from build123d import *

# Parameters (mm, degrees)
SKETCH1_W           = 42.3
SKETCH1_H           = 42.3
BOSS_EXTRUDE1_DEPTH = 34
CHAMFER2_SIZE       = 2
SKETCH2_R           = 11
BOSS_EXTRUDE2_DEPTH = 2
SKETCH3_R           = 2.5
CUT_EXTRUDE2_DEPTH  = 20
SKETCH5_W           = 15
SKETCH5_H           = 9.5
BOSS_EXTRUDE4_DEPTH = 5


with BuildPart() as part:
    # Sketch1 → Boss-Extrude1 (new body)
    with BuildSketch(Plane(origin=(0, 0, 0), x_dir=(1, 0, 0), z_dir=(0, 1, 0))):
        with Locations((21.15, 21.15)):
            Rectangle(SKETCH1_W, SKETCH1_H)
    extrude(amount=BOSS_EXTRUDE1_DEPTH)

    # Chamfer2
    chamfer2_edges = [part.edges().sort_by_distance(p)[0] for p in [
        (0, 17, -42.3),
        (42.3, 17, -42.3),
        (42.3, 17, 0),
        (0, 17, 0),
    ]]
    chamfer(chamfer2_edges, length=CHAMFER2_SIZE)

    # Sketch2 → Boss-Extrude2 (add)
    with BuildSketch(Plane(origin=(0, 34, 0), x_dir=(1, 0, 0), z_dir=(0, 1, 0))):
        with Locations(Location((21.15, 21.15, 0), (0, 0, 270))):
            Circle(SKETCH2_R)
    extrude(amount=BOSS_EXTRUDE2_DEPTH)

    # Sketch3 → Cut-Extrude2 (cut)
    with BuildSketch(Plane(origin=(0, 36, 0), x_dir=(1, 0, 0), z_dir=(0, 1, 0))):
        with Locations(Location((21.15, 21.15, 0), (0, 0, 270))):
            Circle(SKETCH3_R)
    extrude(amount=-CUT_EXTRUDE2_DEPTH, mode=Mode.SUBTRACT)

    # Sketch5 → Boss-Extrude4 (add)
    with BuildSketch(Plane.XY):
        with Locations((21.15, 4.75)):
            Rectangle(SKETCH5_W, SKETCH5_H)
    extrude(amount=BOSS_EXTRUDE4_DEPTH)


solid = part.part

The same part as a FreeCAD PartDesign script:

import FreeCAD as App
import Part
import Sketcher
Q = App.Units.Quantity


def edges_at(feature, points):
    """Names of the edges that pass closest to the given points."""
    edges = feature.Shape.Edges
    near = lambda p: min(range(len(edges)), key=lambda i: edges[i].distToShape(Part.Vertex(*p))[0])
    return sorted({f"Edge{near(p) + 1}" for p in points})

doc = App.newDocument("Part")
params = doc.addObject("Spreadsheet::Sheet", "Params")
for row, (alias, value) in enumerate([
    ("sketch1_width", "42.3 mm"),
    ("pad1_length", "34 mm"),
    ("chamfer_size", "2 mm"),
    ("sketch2_diameter", "22 mm"),
    ("pad2_length", "2 mm"),
    ("sketch3_diameter", "5 mm"),
    ("pocket1_length", "20 mm"),
    ("sketch4_width", "15 mm"),
    ("sketch4_height", "9.5 mm"),
    ("pad3_length", "5 mm"),
], start=1):
    params.set(f"A{row}", alias)
    params.set(f"B{row}", "=" + value)
    params.setAlias(f"B{row}", alias)

body = doc.addObject("PartDesign::Body", "Body")

# Sketch on XZ plane
sketch1 = body.newObject("Sketcher::SketchObject", "Sketch")
sketch1.AttachmentSupport = (doc.getObject("XZ_Plane"), [""])
sketch1.MapMode = "FlatFace"
sketch1.addGeometry(Part.LineSegment(App.Vector(0, -42.3, 0), App.Vector(0, 0, 0)), False)
sketch1.addGeometry(Part.LineSegment(App.Vector(0, 0, 0), App.Vector(42.3, 0, 0)), False)
sketch1.addGeometry(Part.LineSegment(App.Vector(42.3, 0, 0), App.Vector(42.3, -42.3, 0)), False)
sketch1.addGeometry(Part.LineSegment(App.Vector(42.3, -42.3, 0), App.Vector(0, -42.3, 0)), False)
sketch1.addConstraint(Sketcher.Constraint("Coincident", 0, 2, 1, 1))
sketch1.addConstraint(Sketcher.Constraint("Coincident", 1, 2, 2, 1))
sketch1.addConstraint(Sketcher.Constraint("Coincident", 2, 2, 3, 1))
sketch1.addConstraint(Sketcher.Constraint("Coincident", 3, 2, 0, 1))
sketch1.addConstraint(Sketcher.Constraint("Vertical", 0))
sketch1.addConstraint(Sketcher.Constraint("Horizontal", 1))
sketch1.addConstraint(Sketcher.Constraint("Vertical", 2))
sketch1.addConstraint(Sketcher.Constraint("Horizontal", 3))
sketch1.addConstraint(Sketcher.Constraint("Coincident", 0, 2, -1, 1))
sketch1.addConstraint(Sketcher.Constraint("Equal", 3, 0))
sketch1.addConstraint(Sketcher.Constraint("DistanceX", 1, 1, 1, 2, Q("42.3 mm")))
sketch1.setExpression("Constraints[10]", "Params.sketch1_width")
pad1 = body.newObject("PartDesign::Pad", "Pad")
pad1.Profile = sketch1
pad1.setExpression("Length", "Params.pad1_length")
pad1.Reversed = True
doc.recompute()

chamfer = body.newObject("PartDesign::Chamfer", "Chamfer")
chamfer.Base = (pad1, edges_at(pad1, [
    (0, 17, -42.3),
    (42.3, 17, -42.3),
    (42.3, 17, 0),
    (0, 17, 0),
]))
chamfer.setExpression("Size", "Params.chamfer_size")

# Sketch on XZ plane
sketch2 = body.newObject("Sketcher::SketchObject", "Sketch001")
sketch2.AttachmentSupport = (doc.getObject("XZ_Plane"), [""])
sketch2.MapMode = "FlatFace"
sketch2.AttachmentOffset = App.Placement(App.Vector(0, 0, -34), App.Rotation())
sketch2.addGeometry(Part.Circle(App.Vector(21.15, -21.15, 0), App.Vector(0, 0, 1), 11), False)
sketch2.addConstraint(Sketcher.Constraint("Diameter", 0, Q("22 mm")))
sketch2.addConstraint(Sketcher.Constraint("DistanceX", -1, 1, 0, 3, Q("21.15 mm")))
sketch2.addConstraint(Sketcher.Constraint("DistanceY", 0, 3, -1, 1, Q("21.15 mm")))
sketch2.setExpression("Constraints[0]", "Params.sketch2_diameter")
pad2 = body.newObject("PartDesign::Pad", "Pad001")
pad2.Profile = sketch2
pad2.setExpression("Length", "Params.pad2_length")
pad2.Reversed = True

# Sketch on XZ plane
sketch3 = body.newObject("Sketcher::SketchObject", "Sketch002")
sketch3.AttachmentSupport = (doc.getObject("XZ_Plane"), [""])
sketch3.MapMode = "FlatFace"
sketch3.AttachmentOffset = App.Placement(App.Vector(0, 0, -36), App.Rotation())
sketch3.addGeometry(Part.Circle(App.Vector(21.15, -21.15, 0), App.Vector(0, 0, 1), 2.5), False)
sketch3.addConstraint(Sketcher.Constraint("Diameter", 0, Q("5 mm")))
sketch3.addConstraint(Sketcher.Constraint("DistanceX", -1, 1, 0, 3, Q("21.15 mm")))
sketch3.addConstraint(Sketcher.Constraint("DistanceY", 0, 3, -1, 1, Q("21.15 mm")))
sketch3.setExpression("Constraints[0]", "Params.sketch3_diameter")
pocket1 = body.newObject("PartDesign::Pocket", "Pocket")
pocket1.Profile = sketch3
pocket1.setExpression("Length", "Params.pocket1_length")
pocket1.Reversed = True

# Sketch on XY plane
sketch4 = body.newObject("Sketcher::SketchObject", "Sketch003")
sketch4.AttachmentSupport = (doc.getObject("XY_Plane"), [""])
sketch4.MapMode = "FlatFace"
sketch4.addGeometry(Part.LineSegment(App.Vector(13.65, 9.5, 0), App.Vector(13.65, 0, 0)), False)
sketch4.addGeometry(Part.LineSegment(App.Vector(13.65, 0, 0), App.Vector(28.65, 0, 0)), False)
sketch4.addGeometry(Part.LineSegment(App.Vector(28.65, 0, 0), App.Vector(28.65, 9.5, 0)), False)
sketch4.addGeometry(Part.LineSegment(App.Vector(28.65, 9.5, 0), App.Vector(13.65, 9.5, 0)), False)
sketch4.addConstraint(Sketcher.Constraint("Coincident", 0, 2, 1, 1))
sketch4.addConstraint(Sketcher.Constraint("Coincident", 1, 2, 2, 1))
sketch4.addConstraint(Sketcher.Constraint("Coincident", 2, 2, 3, 1))
sketch4.addConstraint(Sketcher.Constraint("Coincident", 3, 2, 0, 1))
sketch4.addConstraint(Sketcher.Constraint("Vertical", 0))
sketch4.addConstraint(Sketcher.Constraint("Horizontal", 1))
sketch4.addConstraint(Sketcher.Constraint("Vertical", 2))
sketch4.addConstraint(Sketcher.Constraint("Horizontal", 3))
sketch4.addConstraint(Sketcher.Constraint("PointOnObject", 0, 2, -1))
sketch4.addConstraint(Sketcher.Constraint("DistanceX", 1, 1, 1, 2, Q("15 mm")))
sketch4.addConstraint(Sketcher.Constraint("DistanceY", 0, 2, 0, 1, Q("9.5 mm")))
sketch4.addConstraint(Sketcher.Constraint("DistanceX", -1, 1, 0, 2, Q("13.65 mm")))
sketch4.setExpression("Constraints[9]", "Params.sketch4_width")
sketch4.setExpression("Constraints[10]", "Params.sketch4_height")
pad3 = body.newObject("PartDesign::Pad", "Pad002")
pad3.Profile = sketch4
pad3.setExpression("Length", "Params.pad3_length")

doc.recompute()
